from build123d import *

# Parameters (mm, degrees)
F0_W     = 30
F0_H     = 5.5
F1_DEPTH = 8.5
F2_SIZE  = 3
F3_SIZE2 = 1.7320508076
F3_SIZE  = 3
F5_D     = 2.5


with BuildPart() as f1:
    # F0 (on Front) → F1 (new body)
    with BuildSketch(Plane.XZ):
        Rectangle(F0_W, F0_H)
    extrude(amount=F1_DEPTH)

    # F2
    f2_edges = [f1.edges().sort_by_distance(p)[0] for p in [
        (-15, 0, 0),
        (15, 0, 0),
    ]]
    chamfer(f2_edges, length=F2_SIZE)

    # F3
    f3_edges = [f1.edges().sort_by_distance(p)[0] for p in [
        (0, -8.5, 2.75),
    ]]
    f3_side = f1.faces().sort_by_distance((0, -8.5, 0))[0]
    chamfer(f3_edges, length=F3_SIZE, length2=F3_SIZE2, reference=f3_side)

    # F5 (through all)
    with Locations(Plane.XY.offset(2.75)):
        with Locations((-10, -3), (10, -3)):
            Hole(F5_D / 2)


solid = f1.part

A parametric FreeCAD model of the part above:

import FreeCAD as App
import Part
import Sketcher
Q = App.Units.Quantity


def edges_at(feature, points):
    """Names of the edges that pass closest to the given points."""
    edges = feature.Shape.Edges
    near = lambda p: min(range(len(edges)), key=lambda i: edges[i].distToShape(Part.Vertex(*p))[0])
    return sorted({f"Edge{near(p) + 1}" for p in points})

doc = App.newDocument("Part")
params = doc.addObject("Spreadsheet::Sheet", "Params")
for row, (alias, value) in enumerate([
    ("sketch1_width", "30 mm"),
    ("sketch1_height", "5.5 mm"),
    ("pad1_length", "8.5 mm"),
    ("chamfer_size", "3 mm"),
    ("chamfer2_size", "3 mm"),
    ("chamfer2_size2", "1.732051 mm"),
    ("sketch2_diameter", "2.5 mm"),
    ("hole_diameter", "2.5 mm"),
], start=1):
    params.set(f"A{row}", alias)
    params.set(f"B{row}", "=" + value)
    params.setAlias(f"B{row}", alias)

body = doc.addObject("PartDesign::Body", "Body")

sketch1 = doc.addObject("Sketcher::SketchObject", "Sketch")
body.addObject(sketch1)
sketch1.AttachmentSupport = (doc.XZ_Plane, [""])
sketch1.MapMode = "FlatFace"
sketch1.addGeometry([
    Part.LineSegment(App.Vector(-15, 3, 0), App.Vector(-15, -3, 0)),
    Part.LineSegment(App.Vector(-15, -3, 0), App.Vector(15, -3, 0)),
    Part.LineSegment(App.Vector(15, -3, 0), App.Vector(15, 3, 0)),
    Part.LineSegment(App.Vector(15, 3, 0), App.Vector(-15, 3, 0)),
], False)
sketch1.addConstraint([
    Sketcher.Constraint("Coincident", 0, 2, 1, 1),
    Sketcher.Constraint("Coincident", 1, 2, 2, 1),
    Sketcher.Constraint("Coincident", 2, 2, 3, 1),
    Sketcher.Constraint("Coincident", 3, 2, 0, 1),
    Sketcher.Constraint("Vertical", 0),
    Sketcher.Constraint("Horizontal", 1),
    Sketcher.Constraint("Vertical", 2),
    Sketcher.Constraint("Horizontal", 3),
    Sketcher.Constraint("Symmetric", 0, 2, 2, 2, -1, 1),
    Sketcher.Constraint("DistanceX", 1, 1, 1, 2, Q("30 mm")),
    Sketcher.Constraint("DistanceY", 0, 2, 0, 1, Q("5.5 mm")),
])
sketch1.setExpression("Constraints[9]", "Params.sketch1_width")
sketch1.setExpression("Constraints[10]", "Params.sketch1_height")
pad1 = doc.addObject("PartDesign::Pad", "Pad")
body.addObject(pad1)
pad1.Profile = sketch1
pad1.setExpression("Length", "Params.pad1_length")
doc.recompute()

chamfer = doc.addObject("PartDesign::Chamfer", "Chamfer")
body.addObject(chamfer)
chamfer.Base = (pad1, edges_at(pad1, [(-15, 0, 0), (15, 0, 0)]))
chamfer.setExpression("Size", "Params.chamfer_size")
doc.recompute()

chamfer2 = doc.addObject("PartDesign::Chamfer", "Chamfer001")
body.addObject(chamfer2)
chamfer2.Base = (chamfer, edges_at(chamfer, [(0, -8.5, 2.75)]))
chamfer2.ChamferType = "Two distances"
chamfer2.setExpression("Size", "Params.chamfer2_size")
chamfer2.setExpression("Size2", "Params.chamfer2_size2")
chamfer2.FlipDirection = True

sketch2 = doc.addObject("Sketcher::SketchObject", "Sketch001")
body.addObject(sketch2)
sketch2.AttachmentSupport = (doc.XY_Plane, [""])
sketch2.MapMode = "FlatFace"
sketch2.AttachmentOffset = App.Placement(App.Vector(0, 0, 2.75), App.Rotation())
sketch2.addGeometry([
    Part.Circle(App.Vector(-10, -3, 0), App.Vector(0, 0, 1), 1.2),
    Part.Circle(App.Vector(10, -3, 0), App.Vector(0, 0, 1), 1.2),
], False)
sketch2.addConstraint([
    Sketcher.Constraint("Equal", 0, 1),
    Sketcher.Constraint("Symmetric", 0, 3, 1, 3, -2),
    Sketcher.Constraint("Diameter", 0, Q("2.5 mm")),
    Sketcher.Constraint("DistanceX", 0, 3, -1, 1, Q("10 mm")),
    Sketcher.Constraint("DistanceY", 0, 3, -1, 1, Q("3 mm")),
])
sketch2.setExpression("Constraints[2]", "Params.sketch2_diameter")
doc.recompute()
hole = doc.addObject("PartDesign::Hole", "Hole")
body.addObject(hole)
hole.Profile = sketch2
hole.ThreadType = "None"
hole.setExpression("Diameter", "Params.hole_diameter")
hole.DepthType = "ThroughAll"

doc.recompute()
